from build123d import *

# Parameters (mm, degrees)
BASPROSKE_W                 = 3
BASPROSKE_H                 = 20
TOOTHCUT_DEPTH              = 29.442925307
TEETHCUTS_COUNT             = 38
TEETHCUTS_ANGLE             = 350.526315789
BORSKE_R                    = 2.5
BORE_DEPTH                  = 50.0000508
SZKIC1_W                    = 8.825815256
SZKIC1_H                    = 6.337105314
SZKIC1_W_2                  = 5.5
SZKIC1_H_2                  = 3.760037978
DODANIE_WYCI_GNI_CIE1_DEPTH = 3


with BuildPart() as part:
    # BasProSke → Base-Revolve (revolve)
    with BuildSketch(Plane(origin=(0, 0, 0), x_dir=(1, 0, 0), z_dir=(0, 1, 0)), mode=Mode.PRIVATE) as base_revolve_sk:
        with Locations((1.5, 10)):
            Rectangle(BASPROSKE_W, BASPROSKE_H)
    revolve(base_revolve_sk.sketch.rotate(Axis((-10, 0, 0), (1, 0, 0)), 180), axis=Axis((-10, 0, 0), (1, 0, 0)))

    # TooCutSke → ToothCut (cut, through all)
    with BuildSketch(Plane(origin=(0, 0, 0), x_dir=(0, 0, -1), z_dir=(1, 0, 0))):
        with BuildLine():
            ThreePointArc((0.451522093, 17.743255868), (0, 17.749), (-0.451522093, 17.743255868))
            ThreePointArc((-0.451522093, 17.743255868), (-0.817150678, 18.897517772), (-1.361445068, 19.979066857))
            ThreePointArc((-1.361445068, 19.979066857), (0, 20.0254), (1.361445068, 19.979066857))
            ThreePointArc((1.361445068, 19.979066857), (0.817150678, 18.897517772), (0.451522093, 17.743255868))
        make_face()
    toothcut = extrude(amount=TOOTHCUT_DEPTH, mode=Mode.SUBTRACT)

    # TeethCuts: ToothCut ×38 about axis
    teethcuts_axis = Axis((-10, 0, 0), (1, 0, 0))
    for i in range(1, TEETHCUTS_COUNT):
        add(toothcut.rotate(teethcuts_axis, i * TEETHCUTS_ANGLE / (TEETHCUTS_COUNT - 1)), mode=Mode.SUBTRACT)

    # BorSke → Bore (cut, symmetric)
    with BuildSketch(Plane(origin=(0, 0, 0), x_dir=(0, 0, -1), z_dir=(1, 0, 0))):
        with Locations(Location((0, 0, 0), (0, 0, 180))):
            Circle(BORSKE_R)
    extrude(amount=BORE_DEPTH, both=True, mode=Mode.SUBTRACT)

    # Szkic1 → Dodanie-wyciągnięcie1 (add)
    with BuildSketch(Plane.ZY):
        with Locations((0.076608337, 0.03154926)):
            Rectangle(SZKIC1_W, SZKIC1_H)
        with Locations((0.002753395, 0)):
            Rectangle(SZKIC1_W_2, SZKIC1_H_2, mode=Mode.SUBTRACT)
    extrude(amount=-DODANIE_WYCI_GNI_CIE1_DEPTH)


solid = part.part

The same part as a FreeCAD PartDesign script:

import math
import FreeCAD as App
import Part
import Sketcher
from FreeCAD import Vector
Q = App.Units.Quantity


def add_polygon(sketch, points):
    """Adds a closed chain of lines whose ends are joined by coincident constraints."""
    first, n = sketch.GeometryCount, len(points)
    for a, b in zip(points, points[1:] + points[:1]):
        sketch.addGeometry(Part.LineSegment(App.Vector(*a, 0), App.Vector(*b, 0)), False)
    for i in range(n):
        sketch.addConstraint(Sketcher.Constraint("Coincident", first + i, 2, first + (i + 1) % n, 1))

doc = App.newDocument("Part")
body = doc.addObject("PartDesign::Body", "Body")

sketch1 = doc.addObject("Sketcher::SketchObject", "Sketch")
body.addObject(sketch1)
sketch1.AttachmentSupport = (doc.XZ_Plane, [""])
sketch1.MapMode = "FlatFace"
add_polygon(sketch1, [(0, -20), (0, 0), (3, 0), (3, -20)])
sketch1.addConstraint(Sketcher.Constraint("Vertical", 0))
sketch1.addConstraint(Sketcher.Constraint("Horizontal", 1))
sketch1.addConstraint(Sketcher.Constraint("Vertical", 2))
sketch1.addConstraint(Sketcher.Constraint("Horizontal", 3))
sketch1.addConstraint(Sketcher.Constraint("Coincident", 0, 2, -1, 1))
sketch1.addConstraint(Sketcher.Constraint("DistanceX", 1, 1, 1, 2, Q("3 mm")))
sketch1.addConstraint(Sketcher.Constraint("DistanceY", 0, 1, 0, 2, Q("20 mm")))
revolution = doc.addObject("PartDesign::Revolution", "Revolution")
body.addObject(revolution)
revolution.Profile = sketch1
revolution.ReferenceAxis = (sketch1, ["H_Axis"])
revolution.Angle = 360

sketch2 = doc.addObject("Sketcher::SketchObject", "Sketch001")
body.addObject(sketch2)
sketch2.AttachmentSupport = (doc.YZ_Plane, [""])
sketch2.MapMode = "FlatFace"
sketch2.addGeometry(Part.ArcOfCircle(Part.Circle(Vector(0, 0, 0), Vector(0, 0, 1), 17.749), math.radians(-1.457722), math.radians(1.457722)), False)
sketch2.addGeometry(Part.ArcOfCircle(Part.Circle(Vector(16.032662, -7.856511, 0), Vector(0, 0, 1), 7.6), math.radians(58.717118), math.radians(76.992526)), False)
sketch2.addGeometry(Part.ArcOfCircle(Part.Circle(Vector(0, 0, 0), Vector(0, 0, 1), 20.0254), math.radians(-3.898313), math.radians(3.898313)), False)
sketch2.addGeometry(Part.ArcOfCircle(Part.Circle(Vector(16.032662, 7.856511, 0), Vector(0, 0, 1), 7.6), math.radians(-76.992526), math.radians(-58.717118)), False)
sketch2.addConstraint(Sketcher.Constraint("Coincident", 0, 1, 1, 2))
sketch2.addConstraint(Sketcher.Constraint("Coincident", 1, 1, 2, 1))
sketch2.addConstraint(Sketcher.Constraint("Coincident", 2, 2, 3, 2))
sketch2.addConstraint(Sketcher.Constraint("Coincident", 3, 1, 0, 2))
sketch2.addConstraint(Sketcher.Constraint("Coincident", 0, 3, -1, 1))
sketch2.addConstraint(Sketcher.Constraint("Coincident", 2, 3, -1, 1))
sketch2.addConstraint(Sketcher.Constraint("Equal", 1, 3))
sketch2.addConstraint(Sketcher.Constraint("Symmetric", 1, 3, 3, 3, -1))
sketch2.addConstraint(Sketcher.Constraint("Radius", 1, Q("7.6 mm")))
sketch2.addConstraint(Sketcher.Constraint("Radius", 0, Q("17.749 mm")))
sketch2.addConstraint(Sketcher.Constraint("Radius", 2, Q("20.0254 mm")))
sketch2.addConstraint(Sketcher.Constraint("DistanceX", -1, 1, 1, 3, Q("16.032662 mm")))
sketch2.addConstraint(Sketcher.Constraint("DistanceY", 1, 3, -1, 1, Q("7.856511 mm")))
pocket1 = doc.addObject("PartDesign::Pocket", "Pocket")
body.addObject(pocket1)
pocket1.Profile = sketch2
pocket1.Type = "ThroughAll"
pocket1.Reversed = True
doc.recompute()

polarpattern = doc.addObject("PartDesign::PolarPattern", "PolarPattern")
body.addObject(polarpattern)
polarpattern.Originals = [pocket1]
polarpattern.Axis = (doc.X_Axis, [""])
polarpattern.Angle = 360
polarpattern.Occurrences = 38
body.Tip = polarpattern

sketch3 = doc.addObject("Sketcher::SketchObject", "Sketch002")
body.addObject(sketch3)
sketch3.AttachmentSupport = (doc.YZ_Plane, [""])
sketch3.MapMode = "FlatFace"
sketch3.addGeometry(Part.Circle(Vector(0, 0, 0), Vector(0, 0, 1), 2.5), False)
sketch3.addConstraint(Sketcher.Constraint("Coincident", 0, 3, -1, 1))
sketch3.addConstraint(Sketcher.Constraint("Diameter", 0, Q("5 mm")))
pocket2 = doc.addObject("PartDesign::Pocket", "Pocket001")
body.addObject(pocket2)
pocket2.Profile = sketch3
pocket2.Length = 100.000102
pocket2.Midplane = True

sketch4 = doc.addObject("Sketcher::SketchObject", "Sketch003")
body.addObject(sketch4)
sketch4.AttachmentSupport = (doc.YZ_Plane, [""])
sketch4.MapMode = "FlatFace"
add_polygon(sketch4, [(3.200102, -4.336299), (-3.137003, -4.336299), (-3.137003, 4.489516), (3.200102, 4.489516)])
add_polygon(sketch4, [(-1.880019, 2.752753), (-1.880019, -2.747247), (1.880019, -2.747247), (1.880019, 2.752753)])
sketch4.addConstraint(Sketcher.Constraint("Horizontal", 0))
sketch4.addConstraint(Sketcher.Constraint("Vertical", 1))
sketch4.addConstraint(Sketcher.Constraint("Horizontal", 2))
sketch4.addConstraint(Sketcher.Constraint("Vertical", 3))
sketch4.addConstraint(Sketcher.Constraint("Vertical", 4))
sketch4.addConstraint(Sketcher.Constraint("Horizontal", 5))
sketch4.addConstraint(Sketcher.Constraint("Vertical", 6))
sketch4.addConstraint(Sketcher.Constraint("Horizontal", 7))
sketch4.addConstraint(Sketcher.Constraint("DistanceY", 4, 2, 4, 1, Q("5.5 mm")))
sketch4.addConstraint(Sketcher.Constraint("DistanceY", 0, 2, -1, 1, Q("4.336299 mm")))
sketch4.addConstraint(Sketcher.Constraint("DistanceX", -1, 1, 2, 2, Q("3.200102 mm")))
sketch4.addConstraint(Sketcher.Constraint("DistanceX", 0, 2, 0, 1, Q("6.337105 mm")))
sketch4.addConstraint(Sketcher.Constraint("DistanceX", 5, 1, 5, 2, Q("3.760038 mm")))
sketch4.addConstraint(Sketcher.Constraint("DistanceY", 1, 1, 1, 2, Q("8.825815 mm")))
sketch4.addConstraint(Sketcher.Constraint("DistanceX", 4, 2, -1, 1, Q("1.880019 mm")))
sketch4.addConstraint(Sketcher.Constraint("DistanceY", 4, 2, -1, 1, Q("2.747247 mm")))
pad1 = doc.addObject("PartDesign::Pad", "Pad")
body.addObject(pad1)
pad1.Profile = sketch4
pad1.Length = 3

doc.recompute()
